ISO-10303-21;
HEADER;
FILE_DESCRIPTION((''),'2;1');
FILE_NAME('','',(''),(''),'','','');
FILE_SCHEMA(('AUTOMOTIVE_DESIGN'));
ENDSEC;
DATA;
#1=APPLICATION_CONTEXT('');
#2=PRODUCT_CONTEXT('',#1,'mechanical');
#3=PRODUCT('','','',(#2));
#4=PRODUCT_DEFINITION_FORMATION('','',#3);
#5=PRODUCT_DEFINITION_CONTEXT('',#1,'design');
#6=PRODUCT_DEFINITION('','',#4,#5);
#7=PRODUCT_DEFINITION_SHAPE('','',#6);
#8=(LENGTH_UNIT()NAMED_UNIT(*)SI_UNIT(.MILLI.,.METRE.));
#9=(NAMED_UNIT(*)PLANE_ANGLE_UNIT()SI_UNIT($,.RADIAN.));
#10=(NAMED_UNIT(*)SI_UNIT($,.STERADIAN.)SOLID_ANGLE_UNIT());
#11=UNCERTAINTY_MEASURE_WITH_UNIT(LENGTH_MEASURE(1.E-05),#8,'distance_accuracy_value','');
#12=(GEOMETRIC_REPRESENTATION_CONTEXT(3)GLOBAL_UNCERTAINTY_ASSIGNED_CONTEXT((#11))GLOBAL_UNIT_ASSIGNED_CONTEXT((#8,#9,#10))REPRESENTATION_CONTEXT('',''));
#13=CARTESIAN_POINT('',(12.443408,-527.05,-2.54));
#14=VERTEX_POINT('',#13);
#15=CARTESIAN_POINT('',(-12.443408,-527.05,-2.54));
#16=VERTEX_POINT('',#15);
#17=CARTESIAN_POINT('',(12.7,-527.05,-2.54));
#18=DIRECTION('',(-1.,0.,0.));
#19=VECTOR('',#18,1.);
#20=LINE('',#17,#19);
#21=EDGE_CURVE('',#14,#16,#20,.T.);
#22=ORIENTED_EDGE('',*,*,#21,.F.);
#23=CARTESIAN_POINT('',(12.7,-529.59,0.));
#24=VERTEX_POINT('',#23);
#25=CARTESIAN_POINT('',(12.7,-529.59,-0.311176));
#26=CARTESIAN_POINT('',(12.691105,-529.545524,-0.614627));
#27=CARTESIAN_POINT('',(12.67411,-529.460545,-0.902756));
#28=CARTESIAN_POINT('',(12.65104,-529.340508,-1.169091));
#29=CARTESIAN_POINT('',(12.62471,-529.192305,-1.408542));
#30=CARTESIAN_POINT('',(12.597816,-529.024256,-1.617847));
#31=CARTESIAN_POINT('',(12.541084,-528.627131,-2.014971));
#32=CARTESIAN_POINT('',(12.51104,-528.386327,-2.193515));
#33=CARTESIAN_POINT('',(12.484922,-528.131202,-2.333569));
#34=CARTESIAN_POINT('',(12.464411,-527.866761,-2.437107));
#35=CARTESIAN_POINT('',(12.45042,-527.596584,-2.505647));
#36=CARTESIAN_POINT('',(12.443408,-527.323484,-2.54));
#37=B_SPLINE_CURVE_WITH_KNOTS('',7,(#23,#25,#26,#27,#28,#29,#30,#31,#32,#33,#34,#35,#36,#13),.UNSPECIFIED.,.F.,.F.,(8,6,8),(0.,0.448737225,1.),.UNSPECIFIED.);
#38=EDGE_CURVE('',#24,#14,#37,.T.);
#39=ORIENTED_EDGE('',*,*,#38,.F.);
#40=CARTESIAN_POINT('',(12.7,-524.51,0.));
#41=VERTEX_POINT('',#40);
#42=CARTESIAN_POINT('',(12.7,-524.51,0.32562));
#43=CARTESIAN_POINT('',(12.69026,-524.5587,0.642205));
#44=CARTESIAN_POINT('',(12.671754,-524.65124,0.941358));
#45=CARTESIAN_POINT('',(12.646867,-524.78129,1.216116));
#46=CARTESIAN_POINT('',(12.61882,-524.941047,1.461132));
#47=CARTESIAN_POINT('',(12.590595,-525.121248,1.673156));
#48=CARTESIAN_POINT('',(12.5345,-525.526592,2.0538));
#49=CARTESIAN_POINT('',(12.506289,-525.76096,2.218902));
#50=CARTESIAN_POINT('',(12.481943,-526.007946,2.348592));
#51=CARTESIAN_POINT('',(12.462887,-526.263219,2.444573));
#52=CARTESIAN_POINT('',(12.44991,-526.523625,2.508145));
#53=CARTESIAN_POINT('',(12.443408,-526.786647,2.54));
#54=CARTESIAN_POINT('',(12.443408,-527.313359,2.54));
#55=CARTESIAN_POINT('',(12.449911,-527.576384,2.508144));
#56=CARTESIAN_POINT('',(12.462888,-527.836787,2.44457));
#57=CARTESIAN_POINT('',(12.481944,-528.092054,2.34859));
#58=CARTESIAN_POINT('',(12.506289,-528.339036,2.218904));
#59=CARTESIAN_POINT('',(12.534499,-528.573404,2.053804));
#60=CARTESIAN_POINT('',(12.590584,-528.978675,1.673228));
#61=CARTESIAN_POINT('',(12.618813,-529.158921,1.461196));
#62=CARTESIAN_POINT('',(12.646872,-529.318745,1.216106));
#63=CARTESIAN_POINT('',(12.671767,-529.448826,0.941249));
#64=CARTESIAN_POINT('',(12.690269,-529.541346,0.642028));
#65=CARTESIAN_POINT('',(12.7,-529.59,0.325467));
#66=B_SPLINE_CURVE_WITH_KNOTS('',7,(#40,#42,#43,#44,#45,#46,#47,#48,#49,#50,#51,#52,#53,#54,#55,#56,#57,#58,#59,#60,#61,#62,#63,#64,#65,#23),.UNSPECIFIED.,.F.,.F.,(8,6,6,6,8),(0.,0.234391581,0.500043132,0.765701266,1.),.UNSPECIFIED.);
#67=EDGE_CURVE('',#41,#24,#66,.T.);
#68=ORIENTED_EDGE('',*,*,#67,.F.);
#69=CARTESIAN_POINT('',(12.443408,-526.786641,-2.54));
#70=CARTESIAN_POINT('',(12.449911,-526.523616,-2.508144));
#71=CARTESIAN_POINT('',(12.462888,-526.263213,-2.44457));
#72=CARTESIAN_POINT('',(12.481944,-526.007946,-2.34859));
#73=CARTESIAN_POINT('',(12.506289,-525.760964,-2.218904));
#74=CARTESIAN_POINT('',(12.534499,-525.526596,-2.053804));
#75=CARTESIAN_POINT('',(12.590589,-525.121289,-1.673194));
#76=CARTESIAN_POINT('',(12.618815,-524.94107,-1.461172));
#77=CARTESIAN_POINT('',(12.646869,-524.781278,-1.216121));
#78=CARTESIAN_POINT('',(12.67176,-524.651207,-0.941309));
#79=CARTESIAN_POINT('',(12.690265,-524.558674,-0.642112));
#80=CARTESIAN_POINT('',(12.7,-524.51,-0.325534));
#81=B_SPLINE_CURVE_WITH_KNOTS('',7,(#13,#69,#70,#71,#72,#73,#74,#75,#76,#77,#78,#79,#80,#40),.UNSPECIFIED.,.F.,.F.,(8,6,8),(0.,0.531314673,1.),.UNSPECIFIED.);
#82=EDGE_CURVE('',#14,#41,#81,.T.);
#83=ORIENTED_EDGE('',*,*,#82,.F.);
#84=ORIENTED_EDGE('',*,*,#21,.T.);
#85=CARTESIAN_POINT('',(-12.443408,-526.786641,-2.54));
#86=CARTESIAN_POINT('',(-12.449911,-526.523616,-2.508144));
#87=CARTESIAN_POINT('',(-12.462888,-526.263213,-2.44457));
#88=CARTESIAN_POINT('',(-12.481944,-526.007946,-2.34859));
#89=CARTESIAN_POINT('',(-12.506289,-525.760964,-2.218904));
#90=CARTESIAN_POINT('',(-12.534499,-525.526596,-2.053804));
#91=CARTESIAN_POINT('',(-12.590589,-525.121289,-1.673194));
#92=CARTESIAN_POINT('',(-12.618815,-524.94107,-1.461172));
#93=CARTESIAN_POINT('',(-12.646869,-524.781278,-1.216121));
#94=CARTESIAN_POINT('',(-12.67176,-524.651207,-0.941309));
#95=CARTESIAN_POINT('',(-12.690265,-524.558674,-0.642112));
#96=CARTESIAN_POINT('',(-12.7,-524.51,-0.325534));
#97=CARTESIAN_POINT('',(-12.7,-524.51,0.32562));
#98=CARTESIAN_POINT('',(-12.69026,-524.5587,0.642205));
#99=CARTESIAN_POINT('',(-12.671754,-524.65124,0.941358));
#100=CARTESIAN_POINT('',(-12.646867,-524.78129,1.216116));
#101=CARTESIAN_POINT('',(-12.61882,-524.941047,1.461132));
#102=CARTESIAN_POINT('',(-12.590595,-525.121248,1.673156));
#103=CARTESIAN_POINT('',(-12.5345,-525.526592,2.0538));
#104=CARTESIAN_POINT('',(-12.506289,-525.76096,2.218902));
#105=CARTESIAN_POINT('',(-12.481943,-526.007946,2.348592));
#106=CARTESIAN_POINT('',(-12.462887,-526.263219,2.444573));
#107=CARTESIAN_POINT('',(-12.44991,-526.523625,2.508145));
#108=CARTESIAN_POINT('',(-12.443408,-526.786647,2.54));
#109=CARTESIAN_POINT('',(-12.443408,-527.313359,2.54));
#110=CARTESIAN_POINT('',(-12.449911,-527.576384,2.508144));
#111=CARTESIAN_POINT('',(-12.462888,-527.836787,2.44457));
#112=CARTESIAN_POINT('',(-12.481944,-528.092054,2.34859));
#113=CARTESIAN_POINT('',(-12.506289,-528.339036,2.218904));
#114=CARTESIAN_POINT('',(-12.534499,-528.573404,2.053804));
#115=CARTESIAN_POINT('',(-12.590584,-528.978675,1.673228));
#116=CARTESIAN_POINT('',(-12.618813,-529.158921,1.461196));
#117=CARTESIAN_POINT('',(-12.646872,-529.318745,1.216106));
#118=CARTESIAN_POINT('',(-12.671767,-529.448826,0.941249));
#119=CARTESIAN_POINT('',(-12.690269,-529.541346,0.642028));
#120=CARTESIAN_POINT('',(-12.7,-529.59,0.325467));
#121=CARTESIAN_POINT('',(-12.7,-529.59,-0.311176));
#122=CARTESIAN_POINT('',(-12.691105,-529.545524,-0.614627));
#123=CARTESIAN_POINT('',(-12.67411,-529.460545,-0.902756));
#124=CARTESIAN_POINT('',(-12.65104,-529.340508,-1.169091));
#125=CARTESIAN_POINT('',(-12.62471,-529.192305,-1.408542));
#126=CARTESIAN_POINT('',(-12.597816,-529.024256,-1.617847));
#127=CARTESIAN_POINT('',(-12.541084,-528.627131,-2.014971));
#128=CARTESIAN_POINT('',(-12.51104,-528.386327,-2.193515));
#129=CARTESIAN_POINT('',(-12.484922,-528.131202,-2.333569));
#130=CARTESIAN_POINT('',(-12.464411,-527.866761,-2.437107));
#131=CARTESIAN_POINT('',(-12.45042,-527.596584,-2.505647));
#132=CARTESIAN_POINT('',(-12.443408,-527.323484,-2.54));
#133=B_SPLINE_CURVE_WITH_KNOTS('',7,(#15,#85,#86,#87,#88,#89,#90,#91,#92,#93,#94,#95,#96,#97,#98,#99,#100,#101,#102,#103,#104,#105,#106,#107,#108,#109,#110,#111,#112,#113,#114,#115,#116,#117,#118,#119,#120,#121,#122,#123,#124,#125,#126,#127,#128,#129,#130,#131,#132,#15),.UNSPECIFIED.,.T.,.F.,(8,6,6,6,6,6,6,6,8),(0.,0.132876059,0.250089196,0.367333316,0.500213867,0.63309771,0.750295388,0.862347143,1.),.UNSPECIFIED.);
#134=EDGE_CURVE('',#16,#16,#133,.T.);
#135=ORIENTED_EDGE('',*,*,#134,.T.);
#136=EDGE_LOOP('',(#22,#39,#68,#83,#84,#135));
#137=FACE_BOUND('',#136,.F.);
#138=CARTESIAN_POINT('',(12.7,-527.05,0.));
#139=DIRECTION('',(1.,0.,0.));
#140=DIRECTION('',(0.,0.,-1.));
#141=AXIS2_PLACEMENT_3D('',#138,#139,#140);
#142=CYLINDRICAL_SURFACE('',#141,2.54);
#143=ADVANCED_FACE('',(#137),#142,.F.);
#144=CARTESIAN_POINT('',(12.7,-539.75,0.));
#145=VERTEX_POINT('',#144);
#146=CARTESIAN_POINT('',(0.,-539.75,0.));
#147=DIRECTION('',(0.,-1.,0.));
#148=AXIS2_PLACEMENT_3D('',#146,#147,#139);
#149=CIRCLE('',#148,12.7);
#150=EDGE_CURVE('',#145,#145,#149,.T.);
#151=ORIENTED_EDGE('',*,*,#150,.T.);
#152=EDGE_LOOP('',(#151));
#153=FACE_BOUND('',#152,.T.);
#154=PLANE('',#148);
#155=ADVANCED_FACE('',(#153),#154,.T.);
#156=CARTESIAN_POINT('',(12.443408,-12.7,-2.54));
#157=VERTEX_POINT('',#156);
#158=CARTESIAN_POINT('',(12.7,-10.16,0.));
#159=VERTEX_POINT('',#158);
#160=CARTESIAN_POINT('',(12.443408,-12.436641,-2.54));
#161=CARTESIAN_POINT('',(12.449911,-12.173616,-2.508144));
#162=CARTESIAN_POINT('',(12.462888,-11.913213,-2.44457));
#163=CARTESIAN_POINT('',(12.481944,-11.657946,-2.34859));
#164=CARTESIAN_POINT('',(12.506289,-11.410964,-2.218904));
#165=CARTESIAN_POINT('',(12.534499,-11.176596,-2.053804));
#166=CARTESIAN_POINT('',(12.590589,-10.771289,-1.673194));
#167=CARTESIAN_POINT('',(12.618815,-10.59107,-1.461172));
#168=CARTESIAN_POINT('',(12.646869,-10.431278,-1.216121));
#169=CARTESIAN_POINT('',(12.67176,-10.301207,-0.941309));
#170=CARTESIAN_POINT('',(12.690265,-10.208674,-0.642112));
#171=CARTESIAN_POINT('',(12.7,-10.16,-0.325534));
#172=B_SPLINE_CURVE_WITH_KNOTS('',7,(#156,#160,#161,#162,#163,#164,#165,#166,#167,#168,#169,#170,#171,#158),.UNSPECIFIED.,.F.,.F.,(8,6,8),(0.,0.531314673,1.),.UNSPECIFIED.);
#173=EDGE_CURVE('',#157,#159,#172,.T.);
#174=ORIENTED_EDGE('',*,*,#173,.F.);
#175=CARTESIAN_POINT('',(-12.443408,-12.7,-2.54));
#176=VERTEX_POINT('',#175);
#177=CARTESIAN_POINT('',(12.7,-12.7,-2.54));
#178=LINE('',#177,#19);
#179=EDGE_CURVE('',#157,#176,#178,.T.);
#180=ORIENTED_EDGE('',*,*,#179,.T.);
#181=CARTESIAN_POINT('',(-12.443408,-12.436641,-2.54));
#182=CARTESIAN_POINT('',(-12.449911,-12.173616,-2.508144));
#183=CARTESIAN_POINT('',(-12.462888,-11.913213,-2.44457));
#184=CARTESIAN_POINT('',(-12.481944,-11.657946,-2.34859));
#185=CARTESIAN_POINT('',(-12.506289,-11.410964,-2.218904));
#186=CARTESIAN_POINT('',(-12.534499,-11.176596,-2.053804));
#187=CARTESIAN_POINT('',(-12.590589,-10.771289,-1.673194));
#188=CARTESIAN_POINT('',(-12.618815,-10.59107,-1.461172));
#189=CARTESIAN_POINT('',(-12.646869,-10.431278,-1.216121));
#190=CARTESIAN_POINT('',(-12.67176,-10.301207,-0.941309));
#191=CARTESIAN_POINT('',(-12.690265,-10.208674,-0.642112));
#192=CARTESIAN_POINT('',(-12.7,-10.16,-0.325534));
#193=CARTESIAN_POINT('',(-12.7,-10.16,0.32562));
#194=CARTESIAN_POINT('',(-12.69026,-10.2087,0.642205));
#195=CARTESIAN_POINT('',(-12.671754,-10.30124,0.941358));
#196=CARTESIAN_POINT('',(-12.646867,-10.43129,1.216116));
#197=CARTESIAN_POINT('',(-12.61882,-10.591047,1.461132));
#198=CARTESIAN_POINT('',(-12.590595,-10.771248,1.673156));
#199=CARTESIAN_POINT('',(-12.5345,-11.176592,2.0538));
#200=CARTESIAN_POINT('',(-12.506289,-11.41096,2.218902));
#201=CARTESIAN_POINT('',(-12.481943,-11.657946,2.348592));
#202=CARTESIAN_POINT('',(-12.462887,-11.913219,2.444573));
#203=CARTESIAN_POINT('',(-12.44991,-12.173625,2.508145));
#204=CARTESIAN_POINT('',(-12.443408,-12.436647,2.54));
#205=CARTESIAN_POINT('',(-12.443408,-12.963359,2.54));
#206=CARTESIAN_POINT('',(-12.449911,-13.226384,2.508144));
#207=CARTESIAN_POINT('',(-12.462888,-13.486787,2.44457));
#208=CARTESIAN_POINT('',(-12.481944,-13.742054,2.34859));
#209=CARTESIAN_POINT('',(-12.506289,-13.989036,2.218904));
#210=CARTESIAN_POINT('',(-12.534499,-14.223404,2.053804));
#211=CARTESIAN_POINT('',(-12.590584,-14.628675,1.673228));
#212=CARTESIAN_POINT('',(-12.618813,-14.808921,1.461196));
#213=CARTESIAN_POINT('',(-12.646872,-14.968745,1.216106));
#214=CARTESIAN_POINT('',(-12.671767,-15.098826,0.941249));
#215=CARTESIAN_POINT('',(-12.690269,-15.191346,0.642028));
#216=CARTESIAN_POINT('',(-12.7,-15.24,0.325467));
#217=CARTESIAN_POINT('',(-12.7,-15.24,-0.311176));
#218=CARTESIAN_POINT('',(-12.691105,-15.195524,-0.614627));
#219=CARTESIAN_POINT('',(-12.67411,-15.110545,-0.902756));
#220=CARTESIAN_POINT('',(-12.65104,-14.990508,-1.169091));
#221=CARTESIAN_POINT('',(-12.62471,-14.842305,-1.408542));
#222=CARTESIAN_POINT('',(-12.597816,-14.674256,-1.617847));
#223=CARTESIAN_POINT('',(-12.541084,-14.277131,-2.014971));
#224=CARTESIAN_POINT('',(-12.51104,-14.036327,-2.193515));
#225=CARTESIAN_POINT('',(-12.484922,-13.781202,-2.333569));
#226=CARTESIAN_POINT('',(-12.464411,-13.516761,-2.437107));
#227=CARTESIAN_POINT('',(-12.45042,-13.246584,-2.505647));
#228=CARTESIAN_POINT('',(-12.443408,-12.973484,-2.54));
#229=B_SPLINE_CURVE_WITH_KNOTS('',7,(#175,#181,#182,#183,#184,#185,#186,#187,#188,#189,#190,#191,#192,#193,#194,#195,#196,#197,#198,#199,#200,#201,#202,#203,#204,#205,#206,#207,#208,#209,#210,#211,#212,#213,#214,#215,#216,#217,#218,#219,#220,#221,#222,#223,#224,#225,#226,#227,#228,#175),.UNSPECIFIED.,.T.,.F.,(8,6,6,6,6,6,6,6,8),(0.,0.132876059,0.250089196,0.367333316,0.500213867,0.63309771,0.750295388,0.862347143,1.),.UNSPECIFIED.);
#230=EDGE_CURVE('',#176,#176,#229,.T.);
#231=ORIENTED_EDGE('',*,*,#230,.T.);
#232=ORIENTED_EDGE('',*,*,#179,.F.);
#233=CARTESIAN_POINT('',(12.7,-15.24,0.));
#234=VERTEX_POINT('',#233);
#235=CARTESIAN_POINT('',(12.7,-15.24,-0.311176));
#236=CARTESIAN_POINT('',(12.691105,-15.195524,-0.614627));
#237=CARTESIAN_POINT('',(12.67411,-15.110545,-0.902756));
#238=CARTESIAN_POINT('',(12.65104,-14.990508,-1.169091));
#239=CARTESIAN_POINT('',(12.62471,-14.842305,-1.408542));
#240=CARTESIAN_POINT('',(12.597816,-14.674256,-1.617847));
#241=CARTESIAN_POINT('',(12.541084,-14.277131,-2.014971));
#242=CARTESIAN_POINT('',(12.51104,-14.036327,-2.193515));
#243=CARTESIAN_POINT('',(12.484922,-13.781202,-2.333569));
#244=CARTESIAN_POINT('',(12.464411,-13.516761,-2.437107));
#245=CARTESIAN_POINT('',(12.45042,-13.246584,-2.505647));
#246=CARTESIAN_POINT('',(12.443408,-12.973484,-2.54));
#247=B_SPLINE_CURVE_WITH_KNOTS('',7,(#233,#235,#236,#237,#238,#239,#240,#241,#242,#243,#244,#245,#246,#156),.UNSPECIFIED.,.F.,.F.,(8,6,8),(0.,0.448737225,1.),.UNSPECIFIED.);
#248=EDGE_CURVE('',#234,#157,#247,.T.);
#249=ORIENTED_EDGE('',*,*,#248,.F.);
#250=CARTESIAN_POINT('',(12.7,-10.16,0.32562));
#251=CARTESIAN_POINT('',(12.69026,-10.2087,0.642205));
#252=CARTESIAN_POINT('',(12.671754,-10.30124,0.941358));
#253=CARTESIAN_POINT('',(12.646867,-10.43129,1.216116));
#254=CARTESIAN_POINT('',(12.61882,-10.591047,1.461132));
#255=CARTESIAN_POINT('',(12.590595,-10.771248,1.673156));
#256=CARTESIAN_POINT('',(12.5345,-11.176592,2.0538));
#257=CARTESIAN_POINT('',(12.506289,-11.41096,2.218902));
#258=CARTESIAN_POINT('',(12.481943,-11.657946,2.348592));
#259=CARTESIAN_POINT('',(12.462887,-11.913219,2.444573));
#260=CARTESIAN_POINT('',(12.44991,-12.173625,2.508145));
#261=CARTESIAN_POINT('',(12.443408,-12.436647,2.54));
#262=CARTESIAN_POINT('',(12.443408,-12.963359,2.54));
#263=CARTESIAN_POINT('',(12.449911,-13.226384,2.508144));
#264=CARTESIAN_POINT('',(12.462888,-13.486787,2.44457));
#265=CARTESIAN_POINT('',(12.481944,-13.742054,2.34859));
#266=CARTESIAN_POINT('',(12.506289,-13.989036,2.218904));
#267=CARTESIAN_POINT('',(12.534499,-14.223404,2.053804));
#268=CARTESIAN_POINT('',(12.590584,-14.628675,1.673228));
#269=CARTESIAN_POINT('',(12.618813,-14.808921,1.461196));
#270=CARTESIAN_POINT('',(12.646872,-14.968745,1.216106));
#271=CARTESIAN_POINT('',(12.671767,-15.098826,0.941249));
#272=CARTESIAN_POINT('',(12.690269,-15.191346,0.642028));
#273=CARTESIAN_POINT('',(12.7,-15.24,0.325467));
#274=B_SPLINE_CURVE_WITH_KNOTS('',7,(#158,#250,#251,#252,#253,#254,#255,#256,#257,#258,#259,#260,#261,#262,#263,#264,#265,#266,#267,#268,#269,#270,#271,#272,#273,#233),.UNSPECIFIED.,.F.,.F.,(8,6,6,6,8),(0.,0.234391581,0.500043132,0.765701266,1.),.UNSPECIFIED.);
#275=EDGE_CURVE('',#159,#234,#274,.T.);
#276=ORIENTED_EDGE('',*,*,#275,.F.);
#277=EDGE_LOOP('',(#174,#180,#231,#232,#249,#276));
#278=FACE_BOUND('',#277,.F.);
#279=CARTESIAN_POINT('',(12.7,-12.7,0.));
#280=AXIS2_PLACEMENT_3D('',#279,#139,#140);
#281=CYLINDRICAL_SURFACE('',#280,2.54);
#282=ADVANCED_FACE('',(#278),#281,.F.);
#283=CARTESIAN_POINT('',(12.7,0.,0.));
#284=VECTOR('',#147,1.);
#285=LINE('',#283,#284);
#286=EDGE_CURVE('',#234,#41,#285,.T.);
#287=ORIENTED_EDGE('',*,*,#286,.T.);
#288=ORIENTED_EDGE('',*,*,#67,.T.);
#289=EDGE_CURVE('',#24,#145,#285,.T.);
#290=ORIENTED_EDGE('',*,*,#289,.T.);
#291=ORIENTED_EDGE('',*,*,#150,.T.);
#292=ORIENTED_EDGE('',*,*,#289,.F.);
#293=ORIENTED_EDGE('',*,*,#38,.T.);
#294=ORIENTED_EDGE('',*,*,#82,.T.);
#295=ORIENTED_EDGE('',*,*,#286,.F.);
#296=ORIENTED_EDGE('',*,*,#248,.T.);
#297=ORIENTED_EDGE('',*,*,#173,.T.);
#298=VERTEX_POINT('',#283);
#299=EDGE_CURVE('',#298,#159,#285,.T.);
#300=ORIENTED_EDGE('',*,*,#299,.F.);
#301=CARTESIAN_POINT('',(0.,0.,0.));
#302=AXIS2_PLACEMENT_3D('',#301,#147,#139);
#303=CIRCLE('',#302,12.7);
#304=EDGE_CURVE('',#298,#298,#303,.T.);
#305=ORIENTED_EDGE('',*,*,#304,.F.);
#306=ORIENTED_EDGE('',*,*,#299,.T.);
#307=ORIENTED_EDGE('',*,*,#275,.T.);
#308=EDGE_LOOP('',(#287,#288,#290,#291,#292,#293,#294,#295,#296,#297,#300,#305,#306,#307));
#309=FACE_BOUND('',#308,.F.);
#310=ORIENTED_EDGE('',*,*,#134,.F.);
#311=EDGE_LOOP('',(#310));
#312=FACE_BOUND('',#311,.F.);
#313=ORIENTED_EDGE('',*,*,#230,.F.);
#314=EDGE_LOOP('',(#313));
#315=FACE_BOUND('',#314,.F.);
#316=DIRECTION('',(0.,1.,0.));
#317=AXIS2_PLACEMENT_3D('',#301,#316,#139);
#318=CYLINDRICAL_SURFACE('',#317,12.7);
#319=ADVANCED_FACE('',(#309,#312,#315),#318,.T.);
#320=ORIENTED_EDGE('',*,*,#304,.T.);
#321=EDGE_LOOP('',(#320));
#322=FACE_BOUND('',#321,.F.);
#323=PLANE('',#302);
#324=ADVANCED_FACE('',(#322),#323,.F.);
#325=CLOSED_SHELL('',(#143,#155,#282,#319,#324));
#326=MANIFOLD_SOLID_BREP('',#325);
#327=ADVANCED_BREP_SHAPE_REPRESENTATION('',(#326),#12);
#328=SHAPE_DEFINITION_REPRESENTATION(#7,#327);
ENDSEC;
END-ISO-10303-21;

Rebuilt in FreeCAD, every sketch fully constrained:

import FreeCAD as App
import Part
import Sketcher

V = App.Vector
Q = App.Units.Quantity

doc = App.newDocument("Part")
body = doc.addObject("PartDesign::Body", "Body")

# Sketch on XY plane
sketch1 = body.newObject("Sketcher::SketchObject", "Sketch")
sketch1.AttachmentSupport = (doc.getObject("XY_Plane"), [""])
sketch1.MapMode = "FlatFace"
sketch1.addGeometry(Part.Circle(V(0, 0, 0), V(0, 0, 1), 12.7), False)
sketch1.addConstraint([
    Sketcher.Constraint("Coincident", 0, 3, -1, 1),
    Sketcher.Constraint("Diameter", 0, Q("1 in")),
])
pad1 = body.newObject("PartDesign::Pad", "Pad")
pad1.Profile = sketch1
pad1.Length = Q("21.25 in")
body2 = doc.addObject("PartDesign::Body", "Body001")
doc.recompute()

body.Placement = App.Placement(V(0, 0, 0), App.Rotation(V(1, 0, 0), 90))
boolean = body2.newObject("PartDesign::Boolean", "Boolean")
boolean.Type = "Fuse"
boolean.addObjects([body])
body3 = doc.addObject("PartDesign::Body", "Body002")
doc.recompute()

body2.Placement = App.Placement(V(0, 0, 0), App.Rotation(V(1, 0, 0), 270))
boolean2 = body3.newObject("PartDesign::Boolean", "Boolean001")
boolean2.Type = "Fuse"
boolean2.addObjects([body2])

# Sketch on YZ plane
sketch2 = body3.newObject("Sketcher::SketchObject", "Sketch001")
sketch2.AttachmentSupport = (doc.getObject("YZ_Plane002"), [""])
sketch2.MapMode = "FlatFace"
sketch2.AttachmentOffset = App.Placement(V(0, 0, 0.5 * 25.4), App.Rotation())
sketch2.addGeometry([
    Part.Circle(V(0, 527.05, 0), V(0, 0, 1), 2.54),
    Part.Circle(V(0, 12.7, 0), V(0, 0, 1), 2.54),
], False)
sketch2.addConstraint([
    Sketcher.Constraint("Equal", 0, 1),
    Sketcher.Constraint("PointOnObject", 0, 3, -2),
    Sketcher.Constraint("PointOnObject", 1, 3, -2),
    Sketcher.Constraint("Diameter", 0, Q("0.2 in")),
    Sketcher.Constraint("DistanceY", -1, 1, 1, 3, Q("0.5 in")),
    Sketcher.Constraint("DistanceY", -1, 1, 0, 3, Q("20.75 in")),
])
pocket1 = body3.newObject("PartDesign::Pocket", "Pocket")
pocket1.Profile = sketch2
pocket1.Type = "ThroughAll"
body4 = doc.addObject("PartDesign::Body", "Body003")
doc.recompute()

body3.Placement = App.Placement(V(0, 0, 0), App.Rotation(V(1, 0, 0), 90))
boolean3 = body4.newObject("PartDesign::Boolean", "Boolean002")
boolean3.Type = "Fuse"
boolean3.addObjects([body3])

doc.recompute()
